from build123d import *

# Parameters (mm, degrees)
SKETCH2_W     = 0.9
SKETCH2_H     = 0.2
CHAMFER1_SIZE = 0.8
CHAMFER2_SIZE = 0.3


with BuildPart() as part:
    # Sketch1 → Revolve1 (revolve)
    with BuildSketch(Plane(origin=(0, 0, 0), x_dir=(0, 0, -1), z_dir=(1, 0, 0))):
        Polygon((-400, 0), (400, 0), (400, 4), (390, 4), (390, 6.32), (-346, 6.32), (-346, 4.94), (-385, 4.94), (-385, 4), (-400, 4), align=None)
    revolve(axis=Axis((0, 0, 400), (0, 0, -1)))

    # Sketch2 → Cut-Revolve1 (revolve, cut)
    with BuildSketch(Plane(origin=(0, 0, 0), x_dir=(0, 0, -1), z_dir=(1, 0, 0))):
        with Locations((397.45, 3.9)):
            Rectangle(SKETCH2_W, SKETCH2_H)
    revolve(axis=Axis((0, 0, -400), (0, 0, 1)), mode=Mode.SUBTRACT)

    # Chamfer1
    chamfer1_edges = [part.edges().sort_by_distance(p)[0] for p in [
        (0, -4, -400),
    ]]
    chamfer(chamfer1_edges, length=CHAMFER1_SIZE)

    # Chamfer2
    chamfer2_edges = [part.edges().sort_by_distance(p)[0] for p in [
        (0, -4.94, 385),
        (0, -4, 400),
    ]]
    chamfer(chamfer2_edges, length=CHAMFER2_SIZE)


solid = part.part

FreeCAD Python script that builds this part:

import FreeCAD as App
import Part
import Sketcher

V = App.Vector
Q = App.Units.Quantity


def edges_at(feature, points):
    """Names of the edges that pass closest to the given points."""
    edges = feature.Shape.Edges
    near = lambda p: min(range(len(edges)), key=lambda i: edges[i].distToShape(Part.Vertex(*p))[0])
    return sorted({f"Edge{near(p) + 1}" for p in points})

doc = App.newDocument("Part")
body = doc.addObject("PartDesign::Body", "Body")

# Sketch on YZ plane
sketch1 = doc.addObject("Sketcher::SketchObject", "Sketch")
body.addObject(sketch1)
sketch1.AttachmentSupport = (doc.YZ_Plane, [""])
sketch1.MapMode = "FlatFace"
sketch1.addGeometry(Part.LineSegment(V(0, 400, 0), V(0, -400, 0)), False)
sketch1.addGeometry(Part.LineSegment(V(0, -400, 0), V(4, -400, 0)), False)
sketch1.addGeometry(Part.LineSegment(V(4, -400, 0), V(4, -390, 0)), False)
sketch1.addGeometry(Part.LineSegment(V(4, -390, 0), V(6.32, -390, 0)), False)
sketch1.addGeometry(Part.LineSegment(V(6.32, -390, 0), V(6.32, 346, 0)), False)
sketch1.addGeometry(Part.LineSegment(V(6.32, 346, 0), V(4.94, 346, 0)), False)
sketch1.addGeometry(Part.LineSegment(V(4.94, 346, 0), V(4.94, 385, 0)), False)
sketch1.addGeometry(Part.LineSegment(V(4.94, 385, 0), V(4, 385, 0)), False)
sketch1.addGeometry(Part.LineSegment(V(4, 385, 0), V(4, 400, 0)), False)
sketch1.addGeometry(Part.LineSegment(V(4, 400, 0), V(0, 400, 0)), False)
sketch1.addConstraint(Sketcher.Constraint("Coincident", 0, 2, 1, 1))
sketch1.addConstraint(Sketcher.Constraint("Coincident", 1, 2, 2, 1))
sketch1.addConstraint(Sketcher.Constraint("Coincident", 2, 2, 3, 1))
sketch1.addConstraint(Sketcher.Constraint("Coincident", 3, 2, 4, 1))
sketch1.addConstraint(Sketcher.Constraint("Coincident", 4, 2, 5, 1))
sketch1.addConstraint(Sketcher.Constraint("Coincident", 5, 2, 6, 1))
sketch1.addConstraint(Sketcher.Constraint("Coincident", 6, 2, 7, 1))
sketch1.addConstraint(Sketcher.Constraint("Coincident", 7, 2, 8, 1))
sketch1.addConstraint(Sketcher.Constraint("Coincident", 8, 2, 9, 1))
sketch1.addConstraint(Sketcher.Constraint("Coincident", 9, 2, 0, 1))
sketch1.addConstraint(Sketcher.Constraint("Vertical", 0))
sketch1.addConstraint(Sketcher.Constraint("Horizontal", 1))
sketch1.addConstraint(Sketcher.Constraint("Vertical", 2))
sketch1.addConstraint(Sketcher.Constraint("Horizontal", 3))
sketch1.addConstraint(Sketcher.Constraint("Vertical", 4))
sketch1.addConstraint(Sketcher.Constraint("Horizontal", 5))
sketch1.addConstraint(Sketcher.Constraint("Vertical", 6))
sketch1.addConstraint(Sketcher.Constraint("Horizontal", 7))
sketch1.addConstraint(Sketcher.Constraint("Vertical", 8))
sketch1.addConstraint(Sketcher.Constraint("Horizontal", 9))
sketch1.addConstraint(Sketcher.Constraint("Symmetric", 0, 2, 9, 2, -1, 1))
sketch1.addConstraint(Sketcher.Constraint("Vertical", 2, 2, 7, 2))
sketch1.addConstraint(Sketcher.Constraint("DistanceX", 1, 1, 1, 2, Q("4 mm")))
sketch1.addConstraint(Sketcher.Constraint("DistanceY", 0, 2, 0, 1, Q("800 mm")))
sketch1.addConstraint(Sketcher.Constraint("DistanceY", 2, 1, 2, 2, Q("10 mm")))
sketch1.addConstraint(Sketcher.Constraint("DistanceY", 4, 1, 4, 2, Q("736 mm")))
sketch1.addConstraint(Sketcher.Constraint("DistanceY", 6, 1, 6, 2, Q("39 mm")))
sketch1.addConstraint(Sketcher.Constraint("DistanceX", 3, 1, 3, 2, Q("2.32 mm")))
sketch1.addConstraint(Sketcher.Constraint("DistanceX", 5, 2, 5, 1, Q("1.38 mm")))
revolution = doc.addObject("PartDesign::Revolution", "Revolution")
body.addObject(revolution)
revolution.Profile = sketch1
revolution.ReferenceAxis = (sketch1, ["V_Axis"])
revolution.Angle = 360

# Sketch on YZ plane
sketch2 = doc.addObject("Sketcher::SketchObject", "Sketch001")
body.addObject(sketch2)
sketch2.AttachmentSupport = (doc.YZ_Plane, [""])
sketch2.MapMode = "FlatFace"
sketch2.addGeometry(Part.LineSegment(V(4, -397, 0), V(3.8, -397, 0)), False)
sketch2.addGeometry(Part.LineSegment(V(3.8, -397, 0), V(3.8, -397.9, 0)), False)
sketch2.addGeometry(Part.LineSegment(V(3.8, -397.9, 0), V(4, -397.9, 0)), False)
sketch2.addGeometry(Part.LineSegment(V(4, -397.9, 0), V(4, -397, 0)), False)
sketch2.addConstraint(Sketcher.Constraint("Coincident", 0, 2, 1, 1))
sketch2.addConstraint(Sketcher.Constraint("Coincident", 1, 2, 2, 1))
sketch2.addConstraint(Sketcher.Constraint("Coincident", 2, 2, 3, 1))
sketch2.addConstraint(Sketcher.Constraint("Coincident", 3, 2, 0, 1))
sketch2.addConstraint(Sketcher.Constraint("Horizontal", 0))
sketch2.addConstraint(Sketcher.Constraint("Vertical", 1))
sketch2.addConstraint(Sketcher.Constraint("Horizontal", 2))
sketch2.addConstraint(Sketcher.Constraint("Vertical", 3))
sketch2.addConstraint(Sketcher.Constraint("DistanceX", 0, 2, 0, 1, Q("0.2 mm")))
sketch2.addConstraint(Sketcher.Constraint("DistanceY", 1, 2, 1, 1, Q("0.9 mm")))
sketch2.addConstraint(Sketcher.Constraint("DistanceY", 0, 2, -1, 1, Q("397 mm")))
sketch2.addConstraint(Sketcher.Constraint("DistanceX", -1, 1, 2, 2, Q("4 mm")))
groove = doc.addObject("PartDesign::Groove", "Groove")
body.addObject(groove)
groove.Profile = sketch2
groove.ReferenceAxis = (sketch2, ["V_Axis"])
groove.Angle = 360
doc.recompute()

chamfer = doc.addObject("PartDesign::Chamfer", "Chamfer")
body.addObject(chamfer)
chamfer.Base = (groove, edges_at(groove, [(0, -4, -400)]))
chamfer.Size = 0.8
doc.recompute()

chamfer2 = doc.addObject("PartDesign::Chamfer", "Chamfer001")
body.addObject(chamfer2)
chamfer2.Base = (chamfer, edges_at(chamfer, [(0, -4.94, 385), (0, -4, 400)]))
chamfer2.Size = 0.3

doc.recompute()
